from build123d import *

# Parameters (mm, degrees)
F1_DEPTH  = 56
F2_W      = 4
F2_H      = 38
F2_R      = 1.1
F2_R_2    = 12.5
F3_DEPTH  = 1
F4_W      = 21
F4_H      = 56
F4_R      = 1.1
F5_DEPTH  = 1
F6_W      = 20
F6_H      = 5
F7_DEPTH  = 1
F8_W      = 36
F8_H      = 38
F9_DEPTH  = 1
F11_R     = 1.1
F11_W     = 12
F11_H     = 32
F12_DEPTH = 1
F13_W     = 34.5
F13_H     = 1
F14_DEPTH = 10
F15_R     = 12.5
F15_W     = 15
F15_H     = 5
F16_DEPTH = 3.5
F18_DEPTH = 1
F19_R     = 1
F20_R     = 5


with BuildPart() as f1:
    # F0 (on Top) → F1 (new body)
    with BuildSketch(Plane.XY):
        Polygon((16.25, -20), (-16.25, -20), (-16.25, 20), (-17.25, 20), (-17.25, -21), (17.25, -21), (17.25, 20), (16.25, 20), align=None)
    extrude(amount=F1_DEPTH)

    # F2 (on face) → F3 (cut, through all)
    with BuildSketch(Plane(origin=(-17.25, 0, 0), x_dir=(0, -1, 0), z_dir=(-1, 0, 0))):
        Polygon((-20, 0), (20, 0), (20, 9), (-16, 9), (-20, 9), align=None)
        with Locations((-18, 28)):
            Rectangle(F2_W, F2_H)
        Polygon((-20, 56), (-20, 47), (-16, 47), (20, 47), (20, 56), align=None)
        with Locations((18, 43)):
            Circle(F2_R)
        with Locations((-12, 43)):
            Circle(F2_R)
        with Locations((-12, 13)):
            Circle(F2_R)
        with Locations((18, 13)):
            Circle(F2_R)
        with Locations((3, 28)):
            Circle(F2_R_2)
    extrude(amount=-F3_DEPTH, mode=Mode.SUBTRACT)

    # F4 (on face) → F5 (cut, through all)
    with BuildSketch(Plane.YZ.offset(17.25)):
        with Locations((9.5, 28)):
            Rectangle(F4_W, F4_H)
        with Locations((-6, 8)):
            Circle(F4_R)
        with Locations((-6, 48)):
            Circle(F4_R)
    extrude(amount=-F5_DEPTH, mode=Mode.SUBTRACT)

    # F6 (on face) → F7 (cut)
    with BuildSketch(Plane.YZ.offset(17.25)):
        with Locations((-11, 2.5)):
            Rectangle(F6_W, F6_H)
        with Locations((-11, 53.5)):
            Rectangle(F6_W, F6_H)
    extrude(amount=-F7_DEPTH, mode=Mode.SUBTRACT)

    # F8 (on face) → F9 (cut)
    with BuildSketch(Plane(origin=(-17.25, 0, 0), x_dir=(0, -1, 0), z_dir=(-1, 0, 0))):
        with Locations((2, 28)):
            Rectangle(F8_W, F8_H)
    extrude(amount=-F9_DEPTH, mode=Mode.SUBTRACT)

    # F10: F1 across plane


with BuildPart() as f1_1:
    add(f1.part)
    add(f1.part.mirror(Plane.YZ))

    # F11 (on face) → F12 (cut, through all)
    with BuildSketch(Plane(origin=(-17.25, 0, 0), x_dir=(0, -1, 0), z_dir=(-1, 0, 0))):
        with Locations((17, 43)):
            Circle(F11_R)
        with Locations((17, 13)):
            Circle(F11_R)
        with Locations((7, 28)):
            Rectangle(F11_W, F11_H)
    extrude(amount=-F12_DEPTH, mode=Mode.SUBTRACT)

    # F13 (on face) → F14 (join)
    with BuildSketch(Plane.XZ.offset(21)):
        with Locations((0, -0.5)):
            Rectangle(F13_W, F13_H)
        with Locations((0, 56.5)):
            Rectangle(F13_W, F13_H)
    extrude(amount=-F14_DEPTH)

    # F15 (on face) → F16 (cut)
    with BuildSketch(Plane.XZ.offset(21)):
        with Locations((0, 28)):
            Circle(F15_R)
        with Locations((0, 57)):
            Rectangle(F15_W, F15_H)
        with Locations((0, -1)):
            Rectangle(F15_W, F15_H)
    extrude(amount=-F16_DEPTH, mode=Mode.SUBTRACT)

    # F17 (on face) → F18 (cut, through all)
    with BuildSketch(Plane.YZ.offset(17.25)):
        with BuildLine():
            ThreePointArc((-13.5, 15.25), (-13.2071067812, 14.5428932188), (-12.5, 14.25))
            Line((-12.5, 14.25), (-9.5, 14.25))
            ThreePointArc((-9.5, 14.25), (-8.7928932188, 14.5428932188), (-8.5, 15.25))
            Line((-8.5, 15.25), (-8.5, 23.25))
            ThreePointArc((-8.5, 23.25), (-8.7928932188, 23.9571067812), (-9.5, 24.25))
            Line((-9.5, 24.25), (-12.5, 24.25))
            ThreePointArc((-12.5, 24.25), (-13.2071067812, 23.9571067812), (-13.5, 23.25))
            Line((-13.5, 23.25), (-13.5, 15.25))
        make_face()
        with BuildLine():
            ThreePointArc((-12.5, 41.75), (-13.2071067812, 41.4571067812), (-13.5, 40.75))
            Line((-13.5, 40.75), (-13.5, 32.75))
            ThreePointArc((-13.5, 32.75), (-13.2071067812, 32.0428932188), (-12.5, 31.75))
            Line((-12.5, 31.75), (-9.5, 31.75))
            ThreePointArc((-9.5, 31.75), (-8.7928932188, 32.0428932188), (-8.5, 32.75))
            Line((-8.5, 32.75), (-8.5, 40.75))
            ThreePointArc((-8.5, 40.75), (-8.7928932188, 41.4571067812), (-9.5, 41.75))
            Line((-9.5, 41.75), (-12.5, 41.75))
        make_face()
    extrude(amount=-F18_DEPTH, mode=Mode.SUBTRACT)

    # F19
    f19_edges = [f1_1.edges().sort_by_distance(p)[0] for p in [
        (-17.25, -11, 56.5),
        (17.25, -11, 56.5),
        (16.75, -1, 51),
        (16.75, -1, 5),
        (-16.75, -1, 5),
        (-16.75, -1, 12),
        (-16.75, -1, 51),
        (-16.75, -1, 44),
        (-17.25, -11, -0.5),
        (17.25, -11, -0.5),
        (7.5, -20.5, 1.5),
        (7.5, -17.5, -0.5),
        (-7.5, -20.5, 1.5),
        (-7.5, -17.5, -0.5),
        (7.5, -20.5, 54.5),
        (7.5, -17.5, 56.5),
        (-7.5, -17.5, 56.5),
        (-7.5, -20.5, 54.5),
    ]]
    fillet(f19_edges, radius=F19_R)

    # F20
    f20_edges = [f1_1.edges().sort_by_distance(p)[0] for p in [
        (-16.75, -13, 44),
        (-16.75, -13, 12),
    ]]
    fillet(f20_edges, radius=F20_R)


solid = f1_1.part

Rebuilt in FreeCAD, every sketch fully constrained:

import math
import FreeCAD as App
import Part
import Sketcher
from FreeCAD import Vector


def edges_at(feature, points):
    """Names of the edges that pass closest to the given points."""
    edges = feature.Shape.Edges
    near = lambda p: min(range(len(edges)), key=lambda i: edges[i].distToShape(Part.Vertex(*p))[0])
    return sorted({f"Edge{near(p) + 1}" for p in points})

doc = App.newDocument("Part")
body = doc.addObject("PartDesign::Body", "Body")

sketch1 = body.newObject("Sketcher::SketchObject", "Sketch")
sketch1.AttachmentSupport = (doc.getObject("XY_Plane"), [""])
sketch1.MapMode = "FlatFace"
sketch1.addGeometry(Part.LineSegment(Vector(16.25, -20, 0), Vector(-16.25, -20, 0)), False)
sketch1.addGeometry(Part.LineSegment(Vector(-16.25, -20, 0), Vector(-16.25, 20, 0)), False)
sketch1.addGeometry(Part.LineSegment(Vector(-16.25, 20, 0), Vector(-17.25, 20, 0)), False)
sketch1.addGeometry(Part.LineSegment(Vector(-17.25, 20, 0), Vector(-17.25, -21, 0)), False)
sketch1.addGeometry(Part.LineSegment(Vector(-17.25, -21, 0), Vector(17.25, -21, 0)), False)
sketch1.addGeometry(Part.LineSegment(Vector(17.25, -21, 0), Vector(17.25, 20, 0)), False)
sketch1.addGeometry(Part.LineSegment(Vector(17.25, 20, 0), Vector(16.25, 20, 0)), False)
sketch1.addGeometry(Part.LineSegment(Vector(16.25, 20, 0), Vector(16.25, -20, 0)), False)
sketch1.addConstraint(Sketcher.Constraint("Coincident", 0, 2, 1, 1))
sketch1.addConstraint(Sketcher.Constraint("Coincident", 1, 2, 2, 1))
sketch1.addConstraint(Sketcher.Constraint("Coincident", 2, 2, 3, 1))
sketch1.addConstraint(Sketcher.Constraint("Coincident", 3, 2, 4, 1))
sketch1.addConstraint(Sketcher.Constraint("Coincident", 4, 2, 5, 1))
sketch1.addConstraint(Sketcher.Constraint("Coincident", 5, 2, 6, 1))
sketch1.addConstraint(Sketcher.Constraint("Coincident", 6, 2, 7, 1))
sketch1.addConstraint(Sketcher.Constraint("Coincident", 7, 2, 0, 1))
sketch1.addConstraint(Sketcher.Constraint("Horizontal", 0))
sketch1.addConstraint(Sketcher.Constraint("Vertical", 1))
sketch1.addConstraint(Sketcher.Constraint("Horizontal", 2))
sketch1.addConstraint(Sketcher.Constraint("Vertical", 3))
sketch1.addConstraint(Sketcher.Constraint("Horizontal", 4))
sketch1.addConstraint(Sketcher.Constraint("Vertical", 5))
sketch1.addConstraint(Sketcher.Constraint("Horizontal", 6))
sketch1.addConstraint(Sketcher.Constraint("Vertical", 7))
sketch1.addConstraint(Sketcher.Constraint("Symmetric", 0, 2, 6, 2, -1, 1))
sketch1.addConstraint(Sketcher.Constraint("Symmetric", 2, 2, 5, 2, -2))
sketch1.addConstraint(Sketcher.Constraint("DistanceX", 2, 2, 2, 1, 1.0))
sketch1.addConstraint(Sketcher.Constraint("DistanceY", 1, 1, 1, 2, 40.0))
sketch1.addConstraint(Sketcher.Constraint("DistanceY", 3, 2, 3, 1, 41.0))
sketch1.addConstraint(Sketcher.Constraint("DistanceX", 0, 2, 0, 1, 32.5))
pad1 = body.newObject("PartDesign::Pad", "Pad")
pad1.Profile = sketch1
pad1.Length = 56

sketch2 = body.newObject("Sketcher::SketchObject", "Sketch001")
sketch2.AttachmentSupport = (doc.getObject("YZ_Plane"), [""])
sketch2.MapMode = "FlatFace"
sketch2.AttachmentOffset = App.Placement(Vector(0, 0, -17.25), App.Rotation())
sketch2.addGeometry(Part.LineSegment(Vector(20, 0, 0), Vector(-20, 0, 0)), False)
sketch2.addGeometry(Part.LineSegment(Vector(-20, 0, 0), Vector(-20, 9, 0)), False)
sketch2.addGeometry(Part.LineSegment(Vector(-20, 9, 0), Vector(16, 9, 0)), False)
sketch2.addGeometry(Part.LineSegment(Vector(16, 9, 0), Vector(16, 47, 0)), False)
sketch2.addGeometry(Part.LineSegment(Vector(16, 47, 0), Vector(-20, 47, 0)), False)
sketch2.addGeometry(Part.LineSegment(Vector(-20, 47, 0), Vector(-20, 56, 0)), False)
sketch2.addGeometry(Part.LineSegment(Vector(-20, 56, 0), Vector(20, 56, 0)), False)
sketch2.addGeometry(Part.LineSegment(Vector(20, 56, 0), Vector(20, 0, 0)), False)
sketch2.addGeometry(Part.Circle(Vector(-18, 43, 0), Vector(0, 0, 1), 1.1), False)
sketch2.addGeometry(Part.Circle(Vector(12, 43, 0), Vector(0, 0, 1), 1.1), False)
sketch2.addGeometry(Part.Circle(Vector(12, 13, 0), Vector(0, 0, 1), 1.1), False)
sketch2.addGeometry(Part.Circle(Vector(-18, 13, 0), Vector(0, 0, 1), 1.1), False)
sketch2.addGeometry(Part.Circle(Vector(-3, 28, 0), Vector(0, 0, 1), 12.5), False)
sketch2.addConstraint(Sketcher.Constraint("Coincident", 0, 2, 1, 1))
sketch2.addConstraint(Sketcher.Constraint("Coincident", 1, 2, 2, 1))
sketch2.addConstraint(Sketcher.Constraint("Coincident", 2, 2, 3, 1))
sketch2.addConstraint(Sketcher.Constraint("Coincident", 3, 2, 4, 1))
sketch2.addConstraint(Sketcher.Constraint("Coincident", 4, 2, 5, 1))
sketch2.addConstraint(Sketcher.Constraint("Coincident", 5, 2, 6, 1))
sketch2.addConstraint(Sketcher.Constraint("Coincident", 6, 2, 7, 1))
sketch2.addConstraint(Sketcher.Constraint("Coincident", 7, 2, 0, 1))
sketch2.addConstraint(Sketcher.Constraint("Horizontal", 0))
sketch2.addConstraint(Sketcher.Constraint("Vertical", 1))
sketch2.addConstraint(Sketcher.Constraint("Horizontal", 2))
sketch2.addConstraint(Sketcher.Constraint("Vertical", 3))
sketch2.addConstraint(Sketcher.Constraint("Horizontal", 4))
sketch2.addConstraint(Sketcher.Constraint("Vertical", 5))
sketch2.addConstraint(Sketcher.Constraint("Horizontal", 6))
sketch2.addConstraint(Sketcher.Constraint("Vertical", 7))
sketch2.addConstraint(Sketcher.Constraint("Equal", 8, 9))
sketch2.addConstraint(Sketcher.Constraint("Equal", 9, 10))
sketch2.addConstraint(Sketcher.Constraint("Equal", 10, 11))
sketch2.addConstraint(Sketcher.Constraint("Symmetric", 0, 2, 7, 2, -1, 1))
sketch2.addConstraint(Sketcher.Constraint("Horizontal", 8, 3, 9, 3))
sketch2.addConstraint(Sketcher.Constraint("Horizontal", 10, 3, 11, 3))
sketch2.addConstraint(Sketcher.Constraint("Vertical", 9, 3, 10, 3))
sketch2.addConstraint(Sketcher.Constraint("Vertical", 8, 3, 11, 3))
sketch2.addConstraint(Sketcher.Constraint("Vertical", 1, 2, 4, 2))
sketch2.addConstraint(Sketcher.Constraint("Equal", 1, 5))
sketch2.addConstraint(Sketcher.Constraint("Diameter", 12, 25.0))
sketch2.addConstraint(Sketcher.Constraint("Diameter", 8, 2.2))
sketch2.addConstraint(Sketcher.Constraint("DistanceX", 0, 2, 0, 1, 40.0))
sketch2.addConstraint(Sketcher.Constraint("DistanceX", 2, 1, 2, 2, 36.0))
sketch2.addConstraint(Sketcher.Constraint("DistanceY", 1, 1, 1, 2, 9.0))
sketch2.addConstraint(Sketcher.Constraint("DistanceY", 3, 1, 3, 2, 38.0))
sketch2.addConstraint(Sketcher.Constraint("DistanceX", 8, 3, -1, 1, 18.0))
sketch2.addConstraint(Sketcher.Constraint("DistanceY", -1, 1, 8, 3, 43.0))
sketch2.addConstraint(Sketcher.Constraint("DistanceX", -1, 1, 9, 3, 12.0))
sketch2.addConstraint(Sketcher.Constraint("DistanceY", -1, 1, 10, 3, 13.0))
sketch2.addConstraint(Sketcher.Constraint("DistanceX", 12, 3, -1, 1, 3.0))
sketch2.addConstraint(Sketcher.Constraint("DistanceY", -1, 1, 12, 3, 28.0))
pocket1 = body.newObject("PartDesign::Pocket", "Pocket")
pocket1.Profile = sketch2
pocket1.Length = 1
pocket1.Reversed = True

sketch3 = body.newObject("Sketcher::SketchObject", "Sketch002")
sketch3.AttachmentSupport = (doc.getObject("YZ_Plane"), [""])
sketch3.MapMode = "FlatFace"
sketch3.AttachmentOffset = App.Placement(Vector(0, 0, 17.25), App.Rotation())
sketch3.addGeometry(Part.LineSegment(Vector(-1, 56, 0), Vector(-1, 0, 0)), False)
sketch3.addGeometry(Part.LineSegment(Vector(-1, 0, 0), Vector(20, 0, 0)), False)
sketch3.addGeometry(Part.LineSegment(Vector(20, 0, 0), Vector(20, 56, 0)), False)
sketch3.addGeometry(Part.LineSegment(Vector(20, 56, 0), Vector(-1, 56, 0)), False)
sketch3.addGeometry(Part.Circle(Vector(-6, 8, 0), Vector(0, 0, 1), 1.1), False)
sketch3.addGeometry(Part.Circle(Vector(-6, 48, 0), Vector(0, 0, 1), 1.1), False)
sketch3.addConstraint(Sketcher.Constraint("Coincident", 0, 2, 1, 1))
sketch3.addConstraint(Sketcher.Constraint("Coincident", 1, 2, 2, 1))
sketch3.addConstraint(Sketcher.Constraint("Coincident", 2, 2, 3, 1))
sketch3.addConstraint(Sketcher.Constraint("Coincident", 3, 2, 0, 1))
sketch3.addConstraint(Sketcher.Constraint("Vertical", 0))
sketch3.addConstraint(Sketcher.Constraint("Horizontal", 1))
sketch3.addConstraint(Sketcher.Constraint("Vertical", 2))
sketch3.addConstraint(Sketcher.Constraint("Horizontal", 3))
sketch3.addConstraint(Sketcher.Constraint("Equal", 4, 5))
sketch3.addConstraint(Sketcher.Constraint("PointOnObject", 0, 2, -1))
sketch3.addConstraint(Sketcher.Constraint("Vertical", 4, 3, 5, 3))
sketch3.addConstraint(Sketcher.Constraint("Diameter", 4, 2.2))
sketch3.addConstraint(Sketcher.Constraint("DistanceX", 1, 1, 1, 2, 21.0))
sketch3.addConstraint(Sketcher.Constraint("DistanceY", 0, 2, 0, 1, 56.0))
sketch3.addConstraint(Sketcher.Constraint("DistanceX", 4, 3, -1, 1, 6.0))
sketch3.addConstraint(Sketcher.Constraint("DistanceY", -1, 1, 4, 3, 8.0))
sketch3.addConstraint(Sketcher.Constraint("DistanceY", -1, 1, 5, 3, 48.0))
sketch3.addConstraint(Sketcher.Constraint("DistanceX", 0, 2, -1, 1, 1.0))
pocket2 = body.newObject("PartDesign::Pocket", "Pocket001")
pocket2.Profile = sketch3
pocket2.Length = 1

sketch4 = body.newObject("Sketcher::SketchObject", "Sketch003")
sketch4.AttachmentSupport = (doc.getObject("YZ_Plane"), [""])
sketch4.MapMode = "FlatFace"
sketch4.AttachmentOffset = App.Placement(Vector(0, 0, 17.25), App.Rotation())
sketch4.addGeometry(Part.LineSegment(Vector(-21, 5, 0), Vector(-21, 0, 0)), False)
sketch4.addGeometry(Part.LineSegment(Vector(-21, 0, 0), Vector(-1, 0, 0)), False)
sketch4.addGeometry(Part.LineSegment(Vector(-1, 0, 0), Vector(-1, 5, 0)), False)
sketch4.addGeometry(Part.LineSegment(Vector(-1, 5, 0), Vector(-21, 5, 0)), False)
sketch4.addGeometry(Part.LineSegment(Vector(-21, 56, 0), Vector(-21, 51, 0)), False)
sketch4.addGeometry(Part.LineSegment(Vector(-21, 51, 0), Vector(-1, 51, 0)), False)
sketch4.addGeometry(Part.LineSegment(Vector(-1, 51, 0), Vector(-1, 56, 0)), False)
sketch4.addGeometry(Part.LineSegment(Vector(-1, 56, 0), Vector(-21, 56, 0)), False)
sketch4.addConstraint(Sketcher.Constraint("Coincident", 0, 2, 1, 1))
sketch4.addConstraint(Sketcher.Constraint("Coincident", 1, 2, 2, 1))
sketch4.addConstraint(Sketcher.Constraint("Coincident", 2, 2, 3, 1))
sketch4.addConstraint(Sketcher.Constraint("Coincident", 3, 2, 0, 1))
sketch4.addConstraint(Sketcher.Constraint("Coincident", 4, 2, 5, 1))
sketch4.addConstraint(Sketcher.Constraint("Coincident", 5, 2, 6, 1))
sketch4.addConstraint(Sketcher.Constraint("Coincident", 6, 2, 7, 1))
sketch4.addConstraint(Sketcher.Constraint("Coincident", 7, 2, 4, 1))
sketch4.addConstraint(Sketcher.Constraint("Vertical", 0))
sketch4.addConstraint(Sketcher.Constraint("Horizontal", 1))
sketch4.addConstraint(Sketcher.Constraint("Vertical", 2))
sketch4.addConstraint(Sketcher.Constraint("Horizontal", 3))
sketch4.addConstraint(Sketcher.Constraint("Vertical", 4))
sketch4.addConstraint(Sketcher.Constraint("Horizontal", 5))
sketch4.addConstraint(Sketcher.Constraint("Vertical", 6))
sketch4.addConstraint(Sketcher.Constraint("Horizontal", 7))
sketch4.addConstraint(Sketcher.Constraint("PointOnObject", 0, 2, -1))
sketch4.addConstraint(Sketcher.Constraint("Vertical", 3, 2, 4, 2))
sketch4.addConstraint(Sketcher.Constraint("Vertical", 2, 2, 5, 2))
sketch4.addConstraint(Sketcher.Constraint("Equal", 2, 4))
sketch4.addConstraint(Sketcher.Constraint("DistanceX", 1, 1, 1, 2, 20.0))
sketch4.addConstraint(Sketcher.Constraint("DistanceY", 0, 2, 0, 1, 5.0))
sketch4.addConstraint(Sketcher.Constraint("DistanceX", 0, 2, -1, 1, 21.0))
sketch4.addConstraint(Sketcher.Constraint("DistanceY", -1, 1, 4, 2, 51.0))
pocket3 = body.newObject("PartDesign::Pocket", "Pocket002")
pocket3.Profile = sketch4
pocket3.Length = 1

sketch5 = body.newObject("Sketcher::SketchObject", "Sketch004")
sketch5.AttachmentSupport = (doc.getObject("YZ_Plane"), [""])
sketch5.MapMode = "FlatFace"
sketch5.AttachmentOffset = App.Placement(Vector(0, 0, -17.25), App.Rotation())
sketch5.addGeometry(Part.LineSegment(Vector(16, 47, 0), Vector(16, 9, 0)), False)
sketch5.addGeometry(Part.LineSegment(Vector(16, 9, 0), Vector(-20, 9, 0)), False)
sketch5.addGeometry(Part.LineSegment(Vector(-20, 9, 0), Vector(-20, 47, 0)), False)
sketch5.addGeometry(Part.LineSegment(Vector(-20, 47, 0), Vector(16, 47, 0)), False)
sketch5.addConstraint(Sketcher.Constraint("Coincident", 0, 2, 1, 1))
sketch5.addConstraint(Sketcher.Constraint("Coincident", 1, 2, 2, 1))
sketch5.addConstraint(Sketcher.Constraint("Coincident", 2, 2, 3, 1))
sketch5.addConstraint(Sketcher.Constraint("Coincident", 3, 2, 0, 1))
sketch5.addConstraint(Sketcher.Constraint("Vertical", 0))
sketch5.addConstraint(Sketcher.Constraint("Horizontal", 1))
sketch5.addConstraint(Sketcher.Constraint("Vertical", 2))
sketch5.addConstraint(Sketcher.Constraint("Horizontal", 3))
sketch5.addConstraint(Sketcher.Constraint("DistanceX", 1, 2, 1, 1, 36.0))
sketch5.addConstraint(Sketcher.Constraint("DistanceY", 0, 2, 0, 1, 38.0))
sketch5.addConstraint(Sketcher.Constraint("DistanceX", -1, 1, 0, 2, 16.0))
sketch5.addConstraint(Sketcher.Constraint("DistanceY", -1, 1, 0, 2, 9.0))
pocket4 = body.newObject("PartDesign::Pocket", "Pocket003")
pocket4.Profile = sketch5
pocket4.Length = 1
pocket4.Reversed = True
body2 = doc.addObject("PartDesign::Body", "Body001")
doc.recompute()

body2.BaseFeature = body
doc.recompute()

mirroring = doc.addObject("Part::Mirroring", "Mirroring")
mirroring.Source = body
mirroring.Base = Vector(0, 0, 0)
mirroring.Normal = Vector(1, 0, 0)
body3 = doc.addObject("PartDesign::Body", "Body002")
body3.BaseFeature = mirroring
boolean = body2.newObject("PartDesign::Boolean", "Boolean")
boolean.Type = "Fuse"
boolean.addObjects([body3])
doc.recompute()

sketch6 = body2.newObject("Sketcher::SketchObject", "Sketch005")
sketch6.AttachmentSupport = (doc.getObject("YZ_Plane001"), [""])
sketch6.MapMode = "FlatFace"
sketch6.AttachmentOffset = App.Placement(Vector(0, 0, -17.25), App.Rotation())
sketch6.addGeometry(Part.Circle(Vector(-17, 43, 0), Vector(0, 0, 1), 1.1), False)
sketch6.addGeometry(Part.Circle(Vector(-17, 13, 0), Vector(0, 0, 1), 1.1), False)
sketch6.addGeometry(Part.LineSegment(Vector(-1, 44, 0), Vector(-1, 12, 0)), False)
sketch6.addGeometry(Part.LineSegment(Vector(-1, 12, 0), Vector(-13, 12, 0)), False)
sketch6.addGeometry(Part.LineSegment(Vector(-13, 12, 0), Vector(-13, 44, 0)), False)
sketch6.addGeometry(Part.LineSegment(Vector(-13, 44, 0), Vector(-1, 44, 0)), False)
sketch6.addConstraint(Sketcher.Constraint("Coincident", 2, 2, 3, 1))
sketch6.addConstraint(Sketcher.Constraint("Coincident", 3, 2, 4, 1))
sketch6.addConstraint(Sketcher.Constraint("Coincident", 4, 2, 5, 1))
sketch6.addConstraint(Sketcher.Constraint("Coincident", 5, 2, 2, 1))
sketch6.addConstraint(Sketcher.Constraint("Vertical", 2))
sketch6.addConstraint(Sketcher.Constraint("Horizontal", 3))
sketch6.addConstraint(Sketcher.Constraint("Vertical", 4))
sketch6.addConstraint(Sketcher.Constraint("Horizontal", 5))
sketch6.addConstraint(Sketcher.Constraint("Equal", 0, 1))
sketch6.addConstraint(Sketcher.Constraint("Vertical", 0, 3, 1, 3))
sketch6.addConstraint(Sketcher.Constraint("Diameter", 0, 2.2))
sketch6.addConstraint(Sketcher.Constraint("DistanceX", 3, 2, 3, 1, 12.0))
sketch6.addConstraint(Sketcher.Constraint("DistanceY", 2, 2, 2, 1, 32.0))
sketch6.addConstraint(Sketcher.Constraint("DistanceX", 0, 3, -1, 1, 17.0))
sketch6.addConstraint(Sketcher.Constraint("DistanceY", -1, 1, 0, 3, 43.0))
sketch6.addConstraint(Sketcher.Constraint("DistanceY", -1, 1, 1, 3, 13.0))
sketch6.addConstraint(Sketcher.Constraint("DistanceX", 2, 2, -1, 1, 1.0))
sketch6.addConstraint(Sketcher.Constraint("DistanceY", -1, 1, 2, 2, 12.0))
pocket5 = body2.newObject("PartDesign::Pocket", "Pocket004")
pocket5.Profile = sketch6
pocket5.Length = 1
pocket5.Reversed = True

sketch7 = body2.newObject("Sketcher::SketchObject", "Sketch006")
sketch7.AttachmentSupport = (doc.getObject("XZ_Plane001"), [""])
sketch7.MapMode = "FlatFace"
sketch7.AttachmentOffset = App.Placement(Vector(0, 0, 21), App.Rotation())
sketch7.addGeometry(Part.LineSegment(Vector(-17.25, 0, 0), Vector(-17.25, -1, 0)), False)
sketch7.addGeometry(Part.LineSegment(Vector(-17.25, -1, 0), Vector(17.25, -1, 0)), False)
sketch7.addGeometry(Part.LineSegment(Vector(17.25, -1, 0), Vector(17.25, 0, 0)), False)
sketch7.addGeometry(Part.LineSegment(Vector(17.25, 0, 0), Vector(-17.25, 0, 0)), False)
sketch7.addGeometry(Part.LineSegment(Vector(-17.25, 57, 0), Vector(-17.25, 56, 0)), False)
sketch7.addGeometry(Part.LineSegment(Vector(-17.25, 56, 0), Vector(17.25, 56, 0)), False)
sketch7.addGeometry(Part.LineSegment(Vector(17.25, 56, 0), Vector(17.25, 57, 0)), False)
sketch7.addGeometry(Part.LineSegment(Vector(17.25, 57, 0), Vector(-17.25, 57, 0)), False)
sketch7.addConstraint(Sketcher.Constraint("Coincident", 0, 2, 1, 1))
sketch7.addConstraint(Sketcher.Constraint("Coincident", 1, 2, 2, 1))
sketch7.addConstraint(Sketcher.Constraint("Coincident", 2, 2, 3, 1))
sketch7.addConstraint(Sketcher.Constraint("Coincident", 3, 2, 0, 1))
sketch7.addConstraint(Sketcher.Constraint("Coincident", 4, 2, 5, 1))
sketch7.addConstraint(Sketcher.Constraint("Coincident", 5, 2, 6, 1))
sketch7.addConstraint(Sketcher.Constraint("Coincident", 6, 2, 7, 1))
sketch7.addConstraint(Sketcher.Constraint("Coincident", 7, 2, 4, 1))
sketch7.addConstraint(Sketcher.Constraint("Vertical", 0))
sketch7.addConstraint(Sketcher.Constraint("Horizontal", 1))
sketch7.addConstraint(Sketcher.Constraint("Vertical", 2))
sketch7.addConstraint(Sketcher.Constraint("Horizontal", 3))
sketch7.addConstraint(Sketcher.Constraint("Vertical", 4))
sketch7.addConstraint(Sketcher.Constraint("Horizontal", 5))
sketch7.addConstraint(Sketcher.Constraint("Vertical", 6))
sketch7.addConstraint(Sketcher.Constraint("Horizontal", 7))
sketch7.addConstraint(Sketcher.Constraint("Symmetric", 2, 2, 3, 2, -1, 1))
sketch7.addConstraint(Sketcher.Constraint("Vertical", 3, 2, 4, 2))
sketch7.addConstraint(Sketcher.Constraint("Vertical", 2, 2, 5, 2))
sketch7.addConstraint(Sketcher.Constraint("Equal", 2, 4))
sketch7.addConstraint(Sketcher.Constraint("DistanceY", 0, 2, 0, 1, 1.0))
sketch7.addConstraint(Sketcher.Constraint("DistanceX", 1, 1, 1, 2, 34.5))
sketch7.addConstraint(Sketcher.Constraint("DistanceY", -1, 1, 4, 2, 56.0))
pad2 = body2.newObject("PartDesign::Pad", "Pad001")
pad2.Profile = sketch7
pad2.Length = 10
pad2.Reversed = True

sketch8 = body2.newObject("Sketcher::SketchObject", "Sketch007")
sketch8.AttachmentSupport = (doc.getObject("XZ_Plane001"), [""])
sketch8.MapMode = "FlatFace"
sketch8.AttachmentOffset = App.Placement(Vector(0, 0, 21), App.Rotation())
sketch8.addGeometry(Part.Circle(Vector(0, 28, 0), Vector(0, 0, 1), 12.5), False)
sketch8.addGeometry(Part.LineSegment(Vector(-7.5, 59.5, 0), Vector(-7.5, 54.5, 0)), False)
sketch8.addGeometry(Part.LineSegment(Vector(-7.5, 54.5, 0), Vector(7.5, 54.5, 0)), False)
sketch8.addGeometry(Part.LineSegment(Vector(7.5, 54.5, 0), Vector(7.5, 59.5, 0)), False)
sketch8.addGeometry(Part.LineSegment(Vector(7.5, 59.5, 0), Vector(-7.5, 59.5, 0)), False)
sketch8.addGeometry(Part.LineSegment(Vector(-7.5, 1.5, 0), Vector(-7.5, -3.5, 0)), False)
sketch8.addGeometry(Part.LineSegment(Vector(-7.5, -3.5, 0), Vector(7.5, -3.5, 0)), False)
sketch8.addGeometry(Part.LineSegment(Vector(7.5, -3.5, 0), Vector(7.5, 1.5, 0)), False)
sketch8.addGeometry(Part.LineSegment(Vector(7.5, 1.5, 0), Vector(-7.5, 1.5, 0)), False)
sketch8.addConstraint(Sketcher.Constraint("Coincident", 1, 2, 2, 1))
sketch8.addConstraint(Sketcher.Constraint("Coincident", 2, 2, 3, 1))
sketch8.addConstraint(Sketcher.Constraint("Coincident", 3, 2, 4, 1))
sketch8.addConstraint(Sketcher.Constraint("Coincident", 4, 2, 1, 1))
sketch8.addConstraint(Sketcher.Constraint("Coincident", 5, 2, 6, 1))
sketch8.addConstraint(Sketcher.Constraint("Coincident", 6, 2, 7, 1))
sketch8.addConstraint(Sketcher.Constraint("Coincident", 7, 2, 8, 1))
sketch8.addConstraint(Sketcher.Constraint("Coincident", 8, 2, 5, 1))
sketch8.addConstraint(Sketcher.Constraint("Vertical", 1))
sketch8.addConstraint(Sketcher.Constraint("Horizontal", 2))
sketch8.addConstraint(Sketcher.Constraint("Vertical", 3))
sketch8.addConstraint(Sketcher.Constraint("Horizontal", 4))
sketch8.addConstraint(Sketcher.Constraint("Vertical", 5))
sketch8.addConstraint(Sketcher.Constraint("Horizontal", 6))
sketch8.addConstraint(Sketcher.Constraint("Vertical", 7))
sketch8.addConstraint(Sketcher.Constraint("Horizontal", 8))
sketch8.addConstraint(Sketcher.Constraint("PointOnObject", 0, 3, -2))
sketch8.addConstraint(Sketcher.Constraint("Vertical", 4, 2, 5, 2))
sketch8.addConstraint(Sketcher.Constraint("Vertical", 3, 2, 6, 2))
sketch8.addConstraint(Sketcher.Constraint("Equal", 3, 5))
sketch8.addConstraint(Sketcher.Constraint("Diameter", 0, 25.0))
sketch8.addConstraint(Sketcher.Constraint("DistanceX", 2, 1, 2, 2, 15.0))
sketch8.addConstraint(Sketcher.Constraint("DistanceY", 1, 2, 1, 1, 5.0))
sketch8.addConstraint(Sketcher.Constraint("DistanceY", -1, 1, 0, 3, 28.0))
sketch8.addConstraint(Sketcher.Constraint("DistanceY", 5, 2, 1, 2, 58.0))
sketch8.addConstraint(Sketcher.Constraint("DistanceX", 1, 2, -1, 1, 7.5))
sketch8.addConstraint(Sketcher.Constraint("DistanceY", -1, 1, 1, 2, 54.5))
pocket6 = body2.newObject("PartDesign::Pocket", "Pocket005")
pocket6.Profile = sketch8
pocket6.Length = 3.5

sketch9 = body2.newObject("Sketcher::SketchObject", "Sketch008")
sketch9.AttachmentSupport = (doc.getObject("YZ_Plane001"), [""])
sketch9.MapMode = "FlatFace"
sketch9.AttachmentOffset = App.Placement(Vector(0, 0, 17.25), App.Rotation())
sketch9.addGeometry(Part.ArcOfCircle(Part.Circle(Vector(-12.5, 15.25, 0), Vector(0, 0, 1), 1), math.radians(180), math.radians(270)), False)
sketch9.addGeometry(Part.LineSegment(Vector(-12.5, 14.25, 0), Vector(-9.5, 14.25, 0)), False)
sketch9.addGeometry(Part.ArcOfCircle(Part.Circle(Vector(-9.5, 15.25, 0), Vector(0, 0, 1), 1), math.radians(-90), math.radians(0)), False)
sketch9.addGeometry(Part.LineSegment(Vector(-8.5, 15.25, 0), Vector(-8.5, 23.25, 0)), False)
sketch9.addGeometry(Part.ArcOfCircle(Part.Circle(Vector(-9.5, 23.25, 0), Vector(0, 0, 1), 1), math.radians(0), math.radians(90)), False)
sketch9.addGeometry(Part.LineSegment(Vector(-9.5, 24.25, 0), Vector(-12.5, 24.25, 0)), False)
sketch9.addGeometry(Part.ArcOfCircle(Part.Circle(Vector(-12.5, 23.25, 0), Vector(0, 0, 1), 1), math.radians(90), math.radians(180)), False)
sketch9.addGeometry(Part.LineSegment(Vector(-13.5, 23.25, 0), Vector(-13.5, 15.25, 0)), False)
sketch9.addGeometry(Part.ArcOfCircle(Part.Circle(Vector(-12.5, 40.75, 0), Vector(0, 0, 1), 1), math.radians(90), math.radians(180)), False)
sketch9.addGeometry(Part.LineSegment(Vector(-13.5, 40.75, 0), Vector(-13.5, 32.75, 0)), False)
sketch9.addGeometry(Part.ArcOfCircle(Part.Circle(Vector(-12.5, 32.75, 0), Vector(0, 0, 1), 1), math.radians(180), math.radians(270)), False)
sketch9.addGeometry(Part.LineSegment(Vector(-12.5, 31.75, 0), Vector(-9.5, 31.75, 0)), False)
sketch9.addGeometry(Part.ArcOfCircle(Part.Circle(Vector(-9.5, 32.75, 0), Vector(0, 0, 1), 1), math.radians(-90), math.radians(0)), False)
sketch9.addGeometry(Part.LineSegment(Vector(-8.5, 32.75, 0), Vector(-8.5, 40.75, 0)), False)
sketch9.addGeometry(Part.ArcOfCircle(Part.Circle(Vector(-9.5, 40.75, 0), Vector(0, 0, 1), 1), math.radians(0), math.radians(90)), False)
sketch9.addGeometry(Part.LineSegment(Vector(-9.5, 41.75, 0), Vector(-12.5, 41.75, 0)), False)
sketch9.addConstraint(Sketcher.Constraint("Tangent", 0, 2, 1, 1))
sketch9.addConstraint(Sketcher.Constraint("Tangent", 1, 2, 2, 1))
sketch9.addConstraint(Sketcher.Constraint("Tangent", 2, 2, 3, 1))
sketch9.addConstraint(Sketcher.Constraint("Tangent", 3, 2, 4, 1))
sketch9.addConstraint(Sketcher.Constraint("Tangent", 4, 2, 5, 1))
sketch9.addConstraint(Sketcher.Constraint("Tangent", 5, 2, 6, 1))
sketch9.addConstraint(Sketcher.Constraint("Tangent", 6, 2, 7, 1))
sketch9.addConstraint(Sketcher.Constraint("Tangent", 7, 2, 0, 1))
sketch9.addConstraint(Sketcher.Constraint("Tangent", 8, 2, 9, 1))
sketch9.addConstraint(Sketcher.Constraint("Tangent", 9, 2, 10, 1))
sketch9.addConstraint(Sketcher.Constraint("Tangent", 10, 2, 11, 1))
sketch9.addConstraint(Sketcher.Constraint("Tangent", 11, 2, 12, 1))
sketch9.addConstraint(Sketcher.Constraint("Tangent", 12, 2, 13, 1))
sketch9.addConstraint(Sketcher.Constraint("Tangent", 13, 2, 14, 1))
sketch9.addConstraint(Sketcher.Constraint("Tangent", 14, 2, 15, 1))
sketch9.addConstraint(Sketcher.Constraint("Tangent", 15, 2, 8, 1))
sketch9.addConstraint(Sketcher.Constraint("Horizontal", 1))
sketch9.addConstraint(Sketcher.Constraint("Vertical", 3))
sketch9.addConstraint(Sketcher.Constraint("Horizontal", 5))
sketch9.addConstraint(Sketcher.Constraint("Vertical", 7))
sketch9.addConstraint(Sketcher.Constraint("Vertical", 9))
sketch9.addConstraint(Sketcher.Constraint("Horizontal", 11))
sketch9.addConstraint(Sketcher.Constraint("Vertical", 13))
sketch9.addConstraint(Sketcher.Constraint("Horizontal", 15))
sketch9.addConstraint(Sketcher.Constraint("Equal", 0, 2))
sketch9.addConstraint(Sketcher.Constraint("Equal", 2, 4))
sketch9.addConstraint(Sketcher.Constraint("Equal", 4, 6))
sketch9.addConstraint(Sketcher.Constraint("Equal", 6, 8))
sketch9.addConstraint(Sketcher.Constraint("Equal", 8, 10))
sketch9.addConstraint(Sketcher.Constraint("Equal", 10, 12))
sketch9.addConstraint(Sketcher.Constraint("Equal", 12, 14))
sketch9.addConstraint(Sketcher.Constraint("Vertical", 6, 3, 8, 3))
sketch9.addConstraint(Sketcher.Constraint("Vertical", 4, 3, 12, 3))
sketch9.addConstraint(Sketcher.Constraint("Equal", 7, 9))
sketch9.addConstraint(Sketcher.Constraint("Radius", 0, 1.0))
sketch9.addConstraint(Sketcher.Constraint("DistanceX", 1, 1, 1, 2, 3.0))
sketch9.addConstraint(Sketcher.Constraint("DistanceY", 3, 1, 3, 2, 8.0))
sketch9.addConstraint(Sketcher.Constraint("DistanceX", 0, 3, -1, 1, 12.5))
sketch9.addConstraint(Sketcher.Constraint("DistanceY", 6, 3, 8, 3, 17.5))
sketch9.addConstraint(Sketcher.Constraint("DistanceY", -1, 1, 0, 3, 15.25))
pocket7 = body2.newObject("PartDesign::Pocket", "Pocket006")
pocket7.Profile = sketch9
pocket7.Length = 1
doc.recompute()

fillet = body2.newObject("PartDesign::Fillet", "Fillet")
fillet.Base = (pocket7, edges_at(pocket7, [
    (-17.25, -11, 56.5),
    (17.25, -11, 56.5),
    (16.75, -1, 51),
    (16.75, -1, 5),
    (-16.75, -1, 5),
    (-16.75, -1, 12),
    (-16.75, -1, 51),
    (-16.75, -1, 44),
    (-17.25, -11, -0.5),
    (17.25, -11, -0.5),
    (7.5, -20.5, 1.5),
    (7.5, -17.5, -0.5),
    (-7.5, -20.5, 1.5),
    (-7.5, -17.5, -0.5),
    (7.5, -20.5, 54.5),
    (7.5, -17.5, 56.5),
    (-7.5, -17.5, 56.5),
    (-7.5, -20.5, 54.5),
]))
fillet.Radius = 1
doc.recompute()

fillet2 = body2.newObject("PartDesign::Fillet", "Fillet001")
fillet2.Base = (fillet, edges_at(fillet, [(-16.75, -13, 44), (-16.75, -13, 12)]))
fillet2.Radius = 5
mirroring.Visibility = False

doc.recompute()
